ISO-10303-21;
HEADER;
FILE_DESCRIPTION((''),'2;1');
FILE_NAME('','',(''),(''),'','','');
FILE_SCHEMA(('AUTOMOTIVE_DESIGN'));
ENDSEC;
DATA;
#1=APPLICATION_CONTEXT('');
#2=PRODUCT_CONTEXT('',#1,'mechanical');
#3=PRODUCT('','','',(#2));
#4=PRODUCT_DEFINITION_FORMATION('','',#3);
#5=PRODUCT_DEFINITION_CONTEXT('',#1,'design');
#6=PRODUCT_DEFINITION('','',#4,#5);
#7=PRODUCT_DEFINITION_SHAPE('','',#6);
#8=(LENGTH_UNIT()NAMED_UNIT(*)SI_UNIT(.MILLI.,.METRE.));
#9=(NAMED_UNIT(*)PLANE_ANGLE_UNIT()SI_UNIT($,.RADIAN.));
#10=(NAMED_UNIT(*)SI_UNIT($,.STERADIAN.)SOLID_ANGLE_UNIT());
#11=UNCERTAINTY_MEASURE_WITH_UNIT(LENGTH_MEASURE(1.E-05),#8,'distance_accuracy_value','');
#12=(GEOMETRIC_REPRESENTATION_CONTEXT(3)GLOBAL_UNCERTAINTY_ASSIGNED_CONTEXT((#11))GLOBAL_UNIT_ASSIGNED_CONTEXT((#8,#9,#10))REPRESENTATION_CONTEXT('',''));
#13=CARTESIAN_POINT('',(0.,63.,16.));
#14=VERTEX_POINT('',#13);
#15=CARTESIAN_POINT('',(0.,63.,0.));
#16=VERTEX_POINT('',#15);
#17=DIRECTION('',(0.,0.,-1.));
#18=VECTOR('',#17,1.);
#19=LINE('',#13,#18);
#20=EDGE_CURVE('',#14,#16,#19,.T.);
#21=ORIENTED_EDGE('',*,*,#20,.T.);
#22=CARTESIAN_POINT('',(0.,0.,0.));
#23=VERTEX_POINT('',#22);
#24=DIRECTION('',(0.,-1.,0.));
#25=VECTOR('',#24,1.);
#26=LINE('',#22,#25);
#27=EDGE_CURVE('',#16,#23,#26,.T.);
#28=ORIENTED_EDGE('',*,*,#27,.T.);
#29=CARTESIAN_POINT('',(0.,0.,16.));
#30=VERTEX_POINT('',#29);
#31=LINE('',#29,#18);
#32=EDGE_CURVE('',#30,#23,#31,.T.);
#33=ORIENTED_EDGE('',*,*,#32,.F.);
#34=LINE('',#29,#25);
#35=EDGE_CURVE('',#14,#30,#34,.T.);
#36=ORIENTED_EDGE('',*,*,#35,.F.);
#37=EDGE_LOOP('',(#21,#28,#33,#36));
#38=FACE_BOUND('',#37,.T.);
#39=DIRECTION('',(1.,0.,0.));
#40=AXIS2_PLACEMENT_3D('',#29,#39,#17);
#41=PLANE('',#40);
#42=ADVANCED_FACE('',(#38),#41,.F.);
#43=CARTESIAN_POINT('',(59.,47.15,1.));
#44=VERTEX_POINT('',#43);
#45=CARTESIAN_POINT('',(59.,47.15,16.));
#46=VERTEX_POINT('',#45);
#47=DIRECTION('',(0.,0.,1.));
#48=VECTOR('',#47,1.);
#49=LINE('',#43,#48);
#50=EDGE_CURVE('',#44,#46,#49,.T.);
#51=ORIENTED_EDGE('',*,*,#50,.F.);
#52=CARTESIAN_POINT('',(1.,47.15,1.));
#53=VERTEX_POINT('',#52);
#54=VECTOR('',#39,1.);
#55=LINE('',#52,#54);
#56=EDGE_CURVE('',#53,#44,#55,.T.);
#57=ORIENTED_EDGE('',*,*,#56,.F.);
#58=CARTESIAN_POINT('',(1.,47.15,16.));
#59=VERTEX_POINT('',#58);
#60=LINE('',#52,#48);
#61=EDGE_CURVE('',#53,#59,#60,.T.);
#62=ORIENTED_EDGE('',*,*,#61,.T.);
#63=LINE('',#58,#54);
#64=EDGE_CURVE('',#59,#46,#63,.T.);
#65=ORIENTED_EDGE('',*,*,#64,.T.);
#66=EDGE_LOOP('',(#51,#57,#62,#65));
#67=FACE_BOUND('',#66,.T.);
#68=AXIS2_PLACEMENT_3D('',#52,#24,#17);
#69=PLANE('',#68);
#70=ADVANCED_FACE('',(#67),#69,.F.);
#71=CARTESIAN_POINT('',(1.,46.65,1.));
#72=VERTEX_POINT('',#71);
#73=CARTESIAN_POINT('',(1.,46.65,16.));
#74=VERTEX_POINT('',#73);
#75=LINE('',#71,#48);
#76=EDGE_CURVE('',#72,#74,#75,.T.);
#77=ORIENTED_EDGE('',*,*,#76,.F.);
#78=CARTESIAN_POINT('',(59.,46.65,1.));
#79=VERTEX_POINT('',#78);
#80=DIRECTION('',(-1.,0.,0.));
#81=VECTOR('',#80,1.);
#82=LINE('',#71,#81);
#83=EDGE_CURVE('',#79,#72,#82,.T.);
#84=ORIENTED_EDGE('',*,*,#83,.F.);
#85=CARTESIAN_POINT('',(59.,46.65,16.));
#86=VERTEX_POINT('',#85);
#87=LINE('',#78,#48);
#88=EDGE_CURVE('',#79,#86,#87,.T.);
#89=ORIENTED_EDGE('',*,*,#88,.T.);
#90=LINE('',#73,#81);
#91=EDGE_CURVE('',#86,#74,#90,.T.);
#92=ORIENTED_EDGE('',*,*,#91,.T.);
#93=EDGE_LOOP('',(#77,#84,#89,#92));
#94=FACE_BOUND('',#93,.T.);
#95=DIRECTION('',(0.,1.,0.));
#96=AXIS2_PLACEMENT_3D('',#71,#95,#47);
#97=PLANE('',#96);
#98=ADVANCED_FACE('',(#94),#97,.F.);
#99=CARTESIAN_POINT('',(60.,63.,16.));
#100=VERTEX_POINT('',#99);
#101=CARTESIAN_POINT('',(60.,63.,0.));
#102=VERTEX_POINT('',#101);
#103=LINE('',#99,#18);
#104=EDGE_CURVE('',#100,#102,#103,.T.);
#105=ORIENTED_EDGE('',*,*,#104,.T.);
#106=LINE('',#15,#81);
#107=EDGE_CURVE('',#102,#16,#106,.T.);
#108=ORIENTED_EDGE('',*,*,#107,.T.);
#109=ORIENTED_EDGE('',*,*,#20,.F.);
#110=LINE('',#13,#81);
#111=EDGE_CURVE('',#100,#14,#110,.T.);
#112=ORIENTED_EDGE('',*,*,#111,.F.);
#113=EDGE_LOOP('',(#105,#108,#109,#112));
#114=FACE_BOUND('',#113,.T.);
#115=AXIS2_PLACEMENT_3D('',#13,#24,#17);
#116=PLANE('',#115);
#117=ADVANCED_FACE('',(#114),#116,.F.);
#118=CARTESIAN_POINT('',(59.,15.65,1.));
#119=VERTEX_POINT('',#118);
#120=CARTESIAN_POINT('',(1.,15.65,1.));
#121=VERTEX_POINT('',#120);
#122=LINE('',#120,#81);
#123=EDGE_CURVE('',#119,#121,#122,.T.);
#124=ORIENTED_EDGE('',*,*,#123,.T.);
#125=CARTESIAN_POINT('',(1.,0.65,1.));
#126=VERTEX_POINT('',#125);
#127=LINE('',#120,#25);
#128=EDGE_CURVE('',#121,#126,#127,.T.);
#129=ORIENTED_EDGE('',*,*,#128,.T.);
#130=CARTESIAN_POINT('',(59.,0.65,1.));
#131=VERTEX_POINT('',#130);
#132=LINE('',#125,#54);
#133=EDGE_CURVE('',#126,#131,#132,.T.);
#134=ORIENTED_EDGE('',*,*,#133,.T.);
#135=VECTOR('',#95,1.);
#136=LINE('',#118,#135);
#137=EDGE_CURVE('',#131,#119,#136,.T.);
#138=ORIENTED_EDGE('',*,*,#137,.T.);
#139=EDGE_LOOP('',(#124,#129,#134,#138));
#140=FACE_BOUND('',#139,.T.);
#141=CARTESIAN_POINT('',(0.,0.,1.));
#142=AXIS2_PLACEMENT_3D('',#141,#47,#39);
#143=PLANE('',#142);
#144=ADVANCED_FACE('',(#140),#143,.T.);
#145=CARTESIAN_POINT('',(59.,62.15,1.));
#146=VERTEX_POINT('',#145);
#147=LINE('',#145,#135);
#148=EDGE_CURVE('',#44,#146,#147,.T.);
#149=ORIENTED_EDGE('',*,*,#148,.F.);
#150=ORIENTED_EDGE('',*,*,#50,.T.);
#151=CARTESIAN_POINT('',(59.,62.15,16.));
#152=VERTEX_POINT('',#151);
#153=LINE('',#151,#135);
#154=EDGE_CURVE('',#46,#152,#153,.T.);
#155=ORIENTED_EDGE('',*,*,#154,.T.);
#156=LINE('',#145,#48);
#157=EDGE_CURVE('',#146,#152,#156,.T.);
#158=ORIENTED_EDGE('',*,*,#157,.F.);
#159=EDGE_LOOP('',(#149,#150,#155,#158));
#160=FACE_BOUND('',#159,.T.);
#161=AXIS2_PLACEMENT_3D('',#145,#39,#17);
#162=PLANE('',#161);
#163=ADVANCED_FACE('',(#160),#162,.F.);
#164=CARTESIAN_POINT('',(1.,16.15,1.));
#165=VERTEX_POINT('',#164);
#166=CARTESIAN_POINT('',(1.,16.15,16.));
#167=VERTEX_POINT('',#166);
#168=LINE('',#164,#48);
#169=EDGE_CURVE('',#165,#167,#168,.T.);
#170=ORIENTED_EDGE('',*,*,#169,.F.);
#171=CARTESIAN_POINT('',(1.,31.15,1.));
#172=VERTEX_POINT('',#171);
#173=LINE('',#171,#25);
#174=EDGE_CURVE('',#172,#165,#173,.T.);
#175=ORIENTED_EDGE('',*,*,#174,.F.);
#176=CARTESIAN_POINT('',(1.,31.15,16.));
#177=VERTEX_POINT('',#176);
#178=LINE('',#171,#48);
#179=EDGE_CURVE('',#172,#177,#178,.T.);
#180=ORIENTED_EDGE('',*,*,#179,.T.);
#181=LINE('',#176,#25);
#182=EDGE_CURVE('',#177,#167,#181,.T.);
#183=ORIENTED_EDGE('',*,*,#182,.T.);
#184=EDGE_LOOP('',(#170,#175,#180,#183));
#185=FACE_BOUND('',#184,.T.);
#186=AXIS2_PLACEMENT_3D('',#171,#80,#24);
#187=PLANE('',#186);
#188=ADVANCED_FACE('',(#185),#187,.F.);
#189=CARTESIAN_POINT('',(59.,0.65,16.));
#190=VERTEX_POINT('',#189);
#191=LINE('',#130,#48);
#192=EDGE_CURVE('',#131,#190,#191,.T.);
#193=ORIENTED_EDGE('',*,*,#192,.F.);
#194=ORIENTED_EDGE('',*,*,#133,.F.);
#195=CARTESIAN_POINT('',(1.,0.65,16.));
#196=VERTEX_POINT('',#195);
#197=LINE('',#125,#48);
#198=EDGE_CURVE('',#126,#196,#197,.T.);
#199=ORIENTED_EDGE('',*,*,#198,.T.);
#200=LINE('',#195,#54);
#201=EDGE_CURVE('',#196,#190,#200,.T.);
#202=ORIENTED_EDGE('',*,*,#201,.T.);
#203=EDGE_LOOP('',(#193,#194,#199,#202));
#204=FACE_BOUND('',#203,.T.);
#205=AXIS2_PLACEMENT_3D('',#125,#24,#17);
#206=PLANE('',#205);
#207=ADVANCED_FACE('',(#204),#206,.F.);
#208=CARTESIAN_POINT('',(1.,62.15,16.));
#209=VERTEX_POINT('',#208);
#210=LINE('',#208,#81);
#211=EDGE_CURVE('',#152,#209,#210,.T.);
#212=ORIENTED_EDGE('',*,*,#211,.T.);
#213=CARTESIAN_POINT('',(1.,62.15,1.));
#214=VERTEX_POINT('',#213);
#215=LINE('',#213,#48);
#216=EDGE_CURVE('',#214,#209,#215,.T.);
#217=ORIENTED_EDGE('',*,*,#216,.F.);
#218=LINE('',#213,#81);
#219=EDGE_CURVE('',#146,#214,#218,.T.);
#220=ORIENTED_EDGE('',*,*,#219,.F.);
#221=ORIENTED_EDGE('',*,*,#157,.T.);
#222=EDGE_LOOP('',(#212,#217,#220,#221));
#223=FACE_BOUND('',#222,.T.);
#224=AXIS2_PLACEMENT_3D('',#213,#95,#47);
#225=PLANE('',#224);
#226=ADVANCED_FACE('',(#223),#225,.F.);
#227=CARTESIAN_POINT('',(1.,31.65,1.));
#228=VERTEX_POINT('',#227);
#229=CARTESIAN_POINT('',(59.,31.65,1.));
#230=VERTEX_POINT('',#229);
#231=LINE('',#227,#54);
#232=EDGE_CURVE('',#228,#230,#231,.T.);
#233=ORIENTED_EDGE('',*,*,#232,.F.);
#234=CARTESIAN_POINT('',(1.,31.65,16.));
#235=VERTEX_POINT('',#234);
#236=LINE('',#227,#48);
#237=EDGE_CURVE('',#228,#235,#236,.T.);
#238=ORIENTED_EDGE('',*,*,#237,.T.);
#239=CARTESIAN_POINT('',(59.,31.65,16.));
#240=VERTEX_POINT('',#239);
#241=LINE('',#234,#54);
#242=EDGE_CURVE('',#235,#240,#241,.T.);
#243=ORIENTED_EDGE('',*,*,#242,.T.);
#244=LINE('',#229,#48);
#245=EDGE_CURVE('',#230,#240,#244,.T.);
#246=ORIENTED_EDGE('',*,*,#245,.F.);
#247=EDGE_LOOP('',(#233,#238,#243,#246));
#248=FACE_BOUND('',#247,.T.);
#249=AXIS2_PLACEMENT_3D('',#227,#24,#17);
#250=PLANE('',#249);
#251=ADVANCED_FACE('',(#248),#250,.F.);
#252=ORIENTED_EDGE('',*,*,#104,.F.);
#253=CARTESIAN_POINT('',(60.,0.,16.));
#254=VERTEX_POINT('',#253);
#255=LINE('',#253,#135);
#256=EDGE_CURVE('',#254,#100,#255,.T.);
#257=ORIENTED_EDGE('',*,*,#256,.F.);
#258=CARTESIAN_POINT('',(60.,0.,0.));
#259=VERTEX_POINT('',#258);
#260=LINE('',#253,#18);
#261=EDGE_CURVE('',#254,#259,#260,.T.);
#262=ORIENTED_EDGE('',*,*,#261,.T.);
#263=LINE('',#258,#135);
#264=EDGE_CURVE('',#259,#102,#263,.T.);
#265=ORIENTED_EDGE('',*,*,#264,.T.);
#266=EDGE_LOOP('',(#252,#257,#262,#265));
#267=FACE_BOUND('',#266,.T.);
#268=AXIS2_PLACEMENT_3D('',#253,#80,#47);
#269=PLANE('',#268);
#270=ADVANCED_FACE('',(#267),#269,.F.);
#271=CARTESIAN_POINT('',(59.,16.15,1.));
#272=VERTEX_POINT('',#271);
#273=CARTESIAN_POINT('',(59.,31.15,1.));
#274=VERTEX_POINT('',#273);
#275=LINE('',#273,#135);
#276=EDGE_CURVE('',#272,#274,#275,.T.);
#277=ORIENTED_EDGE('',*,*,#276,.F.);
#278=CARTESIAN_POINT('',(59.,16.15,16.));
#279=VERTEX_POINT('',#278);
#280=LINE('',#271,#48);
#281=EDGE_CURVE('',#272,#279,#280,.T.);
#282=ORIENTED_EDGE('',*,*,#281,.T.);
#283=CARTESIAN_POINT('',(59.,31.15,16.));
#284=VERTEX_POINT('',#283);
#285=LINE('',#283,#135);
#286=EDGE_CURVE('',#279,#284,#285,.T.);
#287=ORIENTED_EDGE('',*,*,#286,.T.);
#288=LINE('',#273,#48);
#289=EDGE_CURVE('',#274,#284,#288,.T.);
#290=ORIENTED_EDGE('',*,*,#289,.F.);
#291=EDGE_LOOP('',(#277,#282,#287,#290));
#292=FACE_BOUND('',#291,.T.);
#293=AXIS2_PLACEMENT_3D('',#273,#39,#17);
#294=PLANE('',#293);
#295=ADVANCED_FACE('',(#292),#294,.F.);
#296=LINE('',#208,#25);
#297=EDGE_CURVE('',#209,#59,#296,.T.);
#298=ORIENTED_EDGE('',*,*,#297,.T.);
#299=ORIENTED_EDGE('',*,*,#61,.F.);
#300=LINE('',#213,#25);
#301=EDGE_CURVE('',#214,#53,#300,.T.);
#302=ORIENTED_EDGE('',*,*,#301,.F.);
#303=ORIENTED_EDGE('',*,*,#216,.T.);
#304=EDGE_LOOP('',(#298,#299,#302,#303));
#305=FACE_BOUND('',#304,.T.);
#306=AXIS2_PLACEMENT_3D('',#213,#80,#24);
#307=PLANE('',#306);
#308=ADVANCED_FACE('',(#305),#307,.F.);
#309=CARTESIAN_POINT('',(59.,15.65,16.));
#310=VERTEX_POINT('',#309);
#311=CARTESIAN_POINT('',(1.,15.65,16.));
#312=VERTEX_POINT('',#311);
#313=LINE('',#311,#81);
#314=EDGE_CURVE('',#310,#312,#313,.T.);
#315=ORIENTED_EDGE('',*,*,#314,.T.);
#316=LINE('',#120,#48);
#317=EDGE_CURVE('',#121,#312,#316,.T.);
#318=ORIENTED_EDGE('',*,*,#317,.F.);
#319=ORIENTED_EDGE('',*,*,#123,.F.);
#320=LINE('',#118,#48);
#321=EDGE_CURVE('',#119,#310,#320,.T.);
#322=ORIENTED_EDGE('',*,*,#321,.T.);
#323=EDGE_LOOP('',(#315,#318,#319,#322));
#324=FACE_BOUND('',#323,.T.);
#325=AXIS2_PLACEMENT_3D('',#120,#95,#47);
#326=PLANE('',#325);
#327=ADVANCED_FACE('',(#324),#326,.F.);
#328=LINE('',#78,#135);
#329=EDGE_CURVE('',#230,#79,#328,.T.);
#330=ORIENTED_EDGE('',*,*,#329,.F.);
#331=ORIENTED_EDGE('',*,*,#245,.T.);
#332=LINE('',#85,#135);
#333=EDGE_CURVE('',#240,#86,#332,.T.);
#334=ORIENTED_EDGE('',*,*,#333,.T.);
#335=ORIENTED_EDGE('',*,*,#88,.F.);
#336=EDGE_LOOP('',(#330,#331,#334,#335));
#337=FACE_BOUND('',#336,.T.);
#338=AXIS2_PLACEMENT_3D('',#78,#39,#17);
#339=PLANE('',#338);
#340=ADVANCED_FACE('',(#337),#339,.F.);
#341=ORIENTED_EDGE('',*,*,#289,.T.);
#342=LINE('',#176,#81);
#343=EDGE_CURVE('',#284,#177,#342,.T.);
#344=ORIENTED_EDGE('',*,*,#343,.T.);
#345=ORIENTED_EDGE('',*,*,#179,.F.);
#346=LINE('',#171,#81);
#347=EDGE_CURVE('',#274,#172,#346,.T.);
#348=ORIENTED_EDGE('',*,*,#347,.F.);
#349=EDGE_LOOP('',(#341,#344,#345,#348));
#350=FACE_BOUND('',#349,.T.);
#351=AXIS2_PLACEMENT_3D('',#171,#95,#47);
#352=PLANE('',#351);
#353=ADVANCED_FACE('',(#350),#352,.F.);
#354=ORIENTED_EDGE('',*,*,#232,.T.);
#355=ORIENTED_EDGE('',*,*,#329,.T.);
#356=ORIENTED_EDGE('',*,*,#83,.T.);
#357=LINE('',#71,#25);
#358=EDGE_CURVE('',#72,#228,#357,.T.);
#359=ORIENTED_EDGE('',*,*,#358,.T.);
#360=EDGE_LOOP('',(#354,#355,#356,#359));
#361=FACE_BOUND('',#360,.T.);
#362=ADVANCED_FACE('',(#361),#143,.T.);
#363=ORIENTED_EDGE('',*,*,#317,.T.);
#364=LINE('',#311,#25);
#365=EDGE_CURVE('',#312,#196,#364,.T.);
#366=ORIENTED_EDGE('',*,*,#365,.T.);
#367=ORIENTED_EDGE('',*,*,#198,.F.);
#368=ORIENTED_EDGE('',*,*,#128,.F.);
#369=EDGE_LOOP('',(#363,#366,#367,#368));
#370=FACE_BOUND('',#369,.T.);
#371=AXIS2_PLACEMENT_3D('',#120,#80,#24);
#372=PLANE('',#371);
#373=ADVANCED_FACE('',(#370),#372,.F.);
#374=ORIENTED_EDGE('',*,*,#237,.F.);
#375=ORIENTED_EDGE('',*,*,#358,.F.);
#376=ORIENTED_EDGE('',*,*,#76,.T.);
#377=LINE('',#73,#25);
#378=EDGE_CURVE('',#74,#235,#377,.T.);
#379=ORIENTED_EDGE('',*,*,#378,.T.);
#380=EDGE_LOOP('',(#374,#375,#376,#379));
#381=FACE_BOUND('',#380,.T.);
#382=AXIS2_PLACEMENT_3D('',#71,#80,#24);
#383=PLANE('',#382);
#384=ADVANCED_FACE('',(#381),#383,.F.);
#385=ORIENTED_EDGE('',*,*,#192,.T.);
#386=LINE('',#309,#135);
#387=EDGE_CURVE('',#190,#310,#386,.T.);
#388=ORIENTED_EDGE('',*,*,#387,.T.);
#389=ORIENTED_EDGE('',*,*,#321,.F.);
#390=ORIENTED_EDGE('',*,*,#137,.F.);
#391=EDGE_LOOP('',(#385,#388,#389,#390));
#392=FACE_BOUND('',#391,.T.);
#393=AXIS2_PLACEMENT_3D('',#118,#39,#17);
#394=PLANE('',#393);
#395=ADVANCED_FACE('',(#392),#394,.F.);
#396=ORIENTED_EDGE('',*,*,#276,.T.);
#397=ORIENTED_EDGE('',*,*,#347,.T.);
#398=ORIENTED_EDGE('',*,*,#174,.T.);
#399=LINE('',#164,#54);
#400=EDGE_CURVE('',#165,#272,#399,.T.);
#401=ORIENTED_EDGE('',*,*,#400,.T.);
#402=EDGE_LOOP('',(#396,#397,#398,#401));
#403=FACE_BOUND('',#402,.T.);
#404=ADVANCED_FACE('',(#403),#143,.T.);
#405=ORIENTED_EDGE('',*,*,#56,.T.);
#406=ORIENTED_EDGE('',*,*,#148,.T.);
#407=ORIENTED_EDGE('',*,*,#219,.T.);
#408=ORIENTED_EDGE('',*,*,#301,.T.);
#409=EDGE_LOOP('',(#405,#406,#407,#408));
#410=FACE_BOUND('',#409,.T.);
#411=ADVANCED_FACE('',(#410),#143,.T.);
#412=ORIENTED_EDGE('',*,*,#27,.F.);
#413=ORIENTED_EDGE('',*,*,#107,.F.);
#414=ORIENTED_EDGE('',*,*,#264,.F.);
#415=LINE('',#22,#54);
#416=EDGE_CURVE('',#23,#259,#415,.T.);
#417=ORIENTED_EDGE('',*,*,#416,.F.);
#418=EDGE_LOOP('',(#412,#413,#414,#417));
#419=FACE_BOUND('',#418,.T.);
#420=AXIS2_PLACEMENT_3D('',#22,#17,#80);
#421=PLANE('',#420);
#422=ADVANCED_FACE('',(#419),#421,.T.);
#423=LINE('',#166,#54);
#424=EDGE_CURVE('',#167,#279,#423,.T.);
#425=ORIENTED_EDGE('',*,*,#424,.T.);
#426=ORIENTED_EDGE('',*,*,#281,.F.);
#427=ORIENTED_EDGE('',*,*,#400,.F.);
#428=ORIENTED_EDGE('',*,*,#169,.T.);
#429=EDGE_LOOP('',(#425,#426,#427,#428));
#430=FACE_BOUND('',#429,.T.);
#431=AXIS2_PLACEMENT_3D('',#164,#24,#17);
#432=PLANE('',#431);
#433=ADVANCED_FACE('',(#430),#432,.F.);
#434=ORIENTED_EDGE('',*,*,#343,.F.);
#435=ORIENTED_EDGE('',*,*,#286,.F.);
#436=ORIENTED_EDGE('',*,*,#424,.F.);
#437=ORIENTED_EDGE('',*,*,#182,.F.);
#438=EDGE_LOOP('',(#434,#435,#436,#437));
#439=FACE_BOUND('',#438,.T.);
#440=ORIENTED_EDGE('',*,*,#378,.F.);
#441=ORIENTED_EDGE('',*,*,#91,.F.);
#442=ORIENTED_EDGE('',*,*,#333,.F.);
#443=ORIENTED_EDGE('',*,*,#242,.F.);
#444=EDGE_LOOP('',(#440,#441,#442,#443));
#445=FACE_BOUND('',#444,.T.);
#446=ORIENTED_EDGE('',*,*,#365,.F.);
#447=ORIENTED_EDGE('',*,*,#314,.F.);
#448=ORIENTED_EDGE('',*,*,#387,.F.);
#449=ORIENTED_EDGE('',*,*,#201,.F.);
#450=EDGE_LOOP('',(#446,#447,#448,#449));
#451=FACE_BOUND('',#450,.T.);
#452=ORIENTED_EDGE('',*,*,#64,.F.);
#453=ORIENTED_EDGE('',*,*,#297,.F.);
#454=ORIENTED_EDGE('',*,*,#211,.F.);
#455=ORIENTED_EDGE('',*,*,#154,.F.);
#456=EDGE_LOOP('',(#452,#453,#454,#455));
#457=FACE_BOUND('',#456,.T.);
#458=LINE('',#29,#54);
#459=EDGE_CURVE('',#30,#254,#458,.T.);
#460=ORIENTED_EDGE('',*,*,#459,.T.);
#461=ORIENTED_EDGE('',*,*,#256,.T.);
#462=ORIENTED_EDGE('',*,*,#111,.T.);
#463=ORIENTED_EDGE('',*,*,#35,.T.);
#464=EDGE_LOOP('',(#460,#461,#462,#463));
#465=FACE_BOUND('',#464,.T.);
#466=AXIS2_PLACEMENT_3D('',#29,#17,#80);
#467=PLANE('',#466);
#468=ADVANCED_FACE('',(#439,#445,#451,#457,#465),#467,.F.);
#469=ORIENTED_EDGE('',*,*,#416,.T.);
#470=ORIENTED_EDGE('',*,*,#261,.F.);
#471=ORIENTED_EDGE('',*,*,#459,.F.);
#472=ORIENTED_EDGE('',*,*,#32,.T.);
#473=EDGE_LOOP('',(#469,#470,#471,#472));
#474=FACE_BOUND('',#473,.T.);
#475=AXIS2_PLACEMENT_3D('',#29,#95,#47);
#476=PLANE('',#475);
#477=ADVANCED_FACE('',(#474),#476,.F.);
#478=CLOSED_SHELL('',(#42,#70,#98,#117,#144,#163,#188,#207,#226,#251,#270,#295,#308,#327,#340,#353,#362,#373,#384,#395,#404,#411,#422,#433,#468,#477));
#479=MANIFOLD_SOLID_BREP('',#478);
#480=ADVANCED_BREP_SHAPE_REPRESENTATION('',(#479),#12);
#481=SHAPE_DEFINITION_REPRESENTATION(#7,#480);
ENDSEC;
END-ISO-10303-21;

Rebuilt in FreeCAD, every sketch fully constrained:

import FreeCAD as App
import Part
import Sketcher
Q = App.Units.Quantity

doc = App.newDocument("Part")
body = doc.addObject("PartDesign::Body", "Body")

# Sketch on XY plane
sketch1 = doc.addObject("Sketcher::SketchObject", "Sketch")
body.addObject(sketch1)
sketch1.AttachmentSupport = (doc.XY_Plane, [""])
sketch1.MapMode = "FlatFace"
sketch1.addGeometry([
    Part.LineSegment(App.Vector(0, 63, 0), App.Vector(0, 0, 0)),
    Part.LineSegment(App.Vector(0, 0, 0), App.Vector(60, 0, 0)),
    Part.LineSegment(App.Vector(60, 0, 0), App.Vector(60, 63, 0)),
    Part.LineSegment(App.Vector(60, 63, 0), App.Vector(0, 63, 0)),
], False)
sketch1.addConstraint([
    Sketcher.Constraint("Coincident", 0, 2, 1, 1),
    Sketcher.Constraint("Coincident", 1, 2, 2, 1),
    Sketcher.Constraint("Coincident", 2, 2, 3, 1),
    Sketcher.Constraint("Coincident", 3, 2, 0, 1),
    Sketcher.Constraint("Vertical", 0),
    Sketcher.Constraint("Horizontal", 1),
    Sketcher.Constraint("Vertical", 2),
    Sketcher.Constraint("Horizontal", 3),
    Sketcher.Constraint("Coincident", 0, 2, -1, 1),
    Sketcher.Constraint("DistanceX", 1, 1, 1, 2, Q("60 mm")),
    Sketcher.Constraint("DistanceY", 0, 2, 0, 1, Q("63 mm")),
])
pad1 = doc.addObject("PartDesign::Pad", "Pad")
body.addObject(pad1)
pad1.Profile = sketch1
pad1.Length = 16

# Sketch on XY plane
sketch2 = doc.addObject("Sketcher::SketchObject", "Sketch001")
body.addObject(sketch2)
sketch2.AttachmentSupport = (doc.XY_Plane, [""])
sketch2.MapMode = "FlatFace"
sketch2.AttachmentOffset = App.Placement(App.Vector(0, 0, 16), App.Rotation())
sketch2.addGeometry([
    Part.LineSegment(App.Vector(1, 16, 0), App.Vector(1, 1, 0)),  # 0
    Part.LineSegment(App.Vector(1, 1, 0), App.Vector(59, 1, 0)),  # 1
    Part.LineSegment(App.Vector(59, 1, 0), App.Vector(59, 16, 0)),  # 2
    Part.LineSegment(App.Vector(59, 16, 0), App.Vector(1, 16, 0)),  # 3
    Part.LineSegment(App.Vector(1, 31, 0), App.Vector(1, 16, 0)),  # 4
    Part.LineSegment(App.Vector(1, 16, 0), App.Vector(59, 16, 0)),  # 5
    Part.LineSegment(App.Vector(59, 16, 0), App.Vector(59, 31, 0)),  # 6
    Part.LineSegment(App.Vector(59, 31, 0), App.Vector(1, 31, 0)),  # 7
    Part.LineSegment(App.Vector(1, 47, 0), App.Vector(1, 32, 0)),  # 8
    Part.LineSegment(App.Vector(1, 32, 0), App.Vector(59, 32, 0)),  # 9
    Part.LineSegment(App.Vector(59, 32, 0), App.Vector(59, 47, 0)),  # 10
    Part.LineSegment(App.Vector(59, 47, 0), App.Vector(1, 47, 0)),  # 11
    Part.LineSegment(App.Vector(1, 62, 0), App.Vector(1, 47, 0)),  # 12
    Part.LineSegment(App.Vector(1, 47, 0), App.Vector(59, 47, 0)),  # 13
    Part.LineSegment(App.Vector(59, 47, 0), App.Vector(59, 62, 0)),  # 14
    Part.LineSegment(App.Vector(59, 62, 0), App.Vector(1, 62, 0)),  # 15
], False)
sketch2.addConstraint([
    Sketcher.Constraint("Coincident", 0, 2, 1, 1),
    Sketcher.Constraint("Coincident", 1, 2, 2, 1),
    Sketcher.Constraint("Coincident", 2, 2, 3, 1),
    Sketcher.Constraint("Coincident", 3, 2, 0, 1),
    Sketcher.Constraint("Coincident", 4, 2, 5, 1),
    Sketcher.Constraint("Coincident", 5, 2, 6, 1),
    Sketcher.Constraint("Coincident", 6, 2, 7, 1),
    Sketcher.Constraint("Coincident", 7, 2, 4, 1),
    Sketcher.Constraint("Coincident", 8, 2, 9, 1),
    Sketcher.Constraint("Coincident", 9, 2, 10, 1),
    Sketcher.Constraint("Coincident", 10, 2, 11, 1),
    Sketcher.Constraint("Coincident", 11, 2, 8, 1),
    Sketcher.Constraint("Coincident", 12, 2, 13, 1),
    Sketcher.Constraint("Coincident", 13, 2, 14, 1),
    Sketcher.Constraint("Coincident", 14, 2, 15, 1),
    Sketcher.Constraint("Coincident", 15, 2, 12, 1),
    Sketcher.Constraint("Vertical", 0),
    Sketcher.Constraint("Horizontal", 1),
    Sketcher.Constraint("Vertical", 2),
    Sketcher.Constraint("Horizontal", 3),
    Sketcher.Constraint("Vertical", 4),
    Sketcher.Constraint("Horizontal", 5),
    Sketcher.Constraint("Vertical", 6),
    Sketcher.Constraint("Horizontal", 7),
    Sketcher.Constraint("Vertical", 8),
    Sketcher.Constraint("Horizontal", 9),
    Sketcher.Constraint("Vertical", 10),
    Sketcher.Constraint("Horizontal", 11),
    Sketcher.Constraint("Vertical", 12),
    Sketcher.Constraint("Horizontal", 13),
    Sketcher.Constraint("Vertical", 14),
    Sketcher.Constraint("Horizontal", 15),
    Sketcher.Constraint("Vertical", 3, 2, 4, 2),
    Sketcher.Constraint("Vertical", 2, 2, 5, 2),
    Sketcher.Constraint("Vertical", 7, 2, 8, 2),
    Sketcher.Constraint("Vertical", 6, 2, 9, 2),
    Sketcher.Constraint("Vertical", 11, 2, 12, 2),
    Sketcher.Constraint("Vertical", 10, 2, 13, 2),
    Sketcher.Constraint("Equal", 2, 4),
    Sketcher.Constraint("Equal", 6, 8),
    Sketcher.Constraint("Equal", 10, 12),
    Sketcher.Constraint("DistanceX", 1, 1, 1, 2, Q("58 mm")),
    Sketcher.Constraint("DistanceY", 0, 2, 0, 1, Q("15 mm")),
    Sketcher.Constraint("DistanceX", -1, 1, 0, 2, Q("1 mm")),
    Sketcher.Constraint("DistanceY", 3, 2, 8, 2, Q("16 mm")),
    Sketcher.Constraint("DistanceY", 7, 2, 12, 2, Q("16 mm")),
    Sketcher.Constraint("DistanceY", 3, 2, 4, 2, Q("0.5 mm")),
    Sketcher.Constraint("DistanceY", -1, 1, 0, 2, Q("0.65 mm")),
])
pocket1 = doc.addObject("PartDesign::Pocket", "Pocket")
body.addObject(pocket1)
pocket1.Profile = sketch2
pocket1.Length = 15

doc.recompute()
